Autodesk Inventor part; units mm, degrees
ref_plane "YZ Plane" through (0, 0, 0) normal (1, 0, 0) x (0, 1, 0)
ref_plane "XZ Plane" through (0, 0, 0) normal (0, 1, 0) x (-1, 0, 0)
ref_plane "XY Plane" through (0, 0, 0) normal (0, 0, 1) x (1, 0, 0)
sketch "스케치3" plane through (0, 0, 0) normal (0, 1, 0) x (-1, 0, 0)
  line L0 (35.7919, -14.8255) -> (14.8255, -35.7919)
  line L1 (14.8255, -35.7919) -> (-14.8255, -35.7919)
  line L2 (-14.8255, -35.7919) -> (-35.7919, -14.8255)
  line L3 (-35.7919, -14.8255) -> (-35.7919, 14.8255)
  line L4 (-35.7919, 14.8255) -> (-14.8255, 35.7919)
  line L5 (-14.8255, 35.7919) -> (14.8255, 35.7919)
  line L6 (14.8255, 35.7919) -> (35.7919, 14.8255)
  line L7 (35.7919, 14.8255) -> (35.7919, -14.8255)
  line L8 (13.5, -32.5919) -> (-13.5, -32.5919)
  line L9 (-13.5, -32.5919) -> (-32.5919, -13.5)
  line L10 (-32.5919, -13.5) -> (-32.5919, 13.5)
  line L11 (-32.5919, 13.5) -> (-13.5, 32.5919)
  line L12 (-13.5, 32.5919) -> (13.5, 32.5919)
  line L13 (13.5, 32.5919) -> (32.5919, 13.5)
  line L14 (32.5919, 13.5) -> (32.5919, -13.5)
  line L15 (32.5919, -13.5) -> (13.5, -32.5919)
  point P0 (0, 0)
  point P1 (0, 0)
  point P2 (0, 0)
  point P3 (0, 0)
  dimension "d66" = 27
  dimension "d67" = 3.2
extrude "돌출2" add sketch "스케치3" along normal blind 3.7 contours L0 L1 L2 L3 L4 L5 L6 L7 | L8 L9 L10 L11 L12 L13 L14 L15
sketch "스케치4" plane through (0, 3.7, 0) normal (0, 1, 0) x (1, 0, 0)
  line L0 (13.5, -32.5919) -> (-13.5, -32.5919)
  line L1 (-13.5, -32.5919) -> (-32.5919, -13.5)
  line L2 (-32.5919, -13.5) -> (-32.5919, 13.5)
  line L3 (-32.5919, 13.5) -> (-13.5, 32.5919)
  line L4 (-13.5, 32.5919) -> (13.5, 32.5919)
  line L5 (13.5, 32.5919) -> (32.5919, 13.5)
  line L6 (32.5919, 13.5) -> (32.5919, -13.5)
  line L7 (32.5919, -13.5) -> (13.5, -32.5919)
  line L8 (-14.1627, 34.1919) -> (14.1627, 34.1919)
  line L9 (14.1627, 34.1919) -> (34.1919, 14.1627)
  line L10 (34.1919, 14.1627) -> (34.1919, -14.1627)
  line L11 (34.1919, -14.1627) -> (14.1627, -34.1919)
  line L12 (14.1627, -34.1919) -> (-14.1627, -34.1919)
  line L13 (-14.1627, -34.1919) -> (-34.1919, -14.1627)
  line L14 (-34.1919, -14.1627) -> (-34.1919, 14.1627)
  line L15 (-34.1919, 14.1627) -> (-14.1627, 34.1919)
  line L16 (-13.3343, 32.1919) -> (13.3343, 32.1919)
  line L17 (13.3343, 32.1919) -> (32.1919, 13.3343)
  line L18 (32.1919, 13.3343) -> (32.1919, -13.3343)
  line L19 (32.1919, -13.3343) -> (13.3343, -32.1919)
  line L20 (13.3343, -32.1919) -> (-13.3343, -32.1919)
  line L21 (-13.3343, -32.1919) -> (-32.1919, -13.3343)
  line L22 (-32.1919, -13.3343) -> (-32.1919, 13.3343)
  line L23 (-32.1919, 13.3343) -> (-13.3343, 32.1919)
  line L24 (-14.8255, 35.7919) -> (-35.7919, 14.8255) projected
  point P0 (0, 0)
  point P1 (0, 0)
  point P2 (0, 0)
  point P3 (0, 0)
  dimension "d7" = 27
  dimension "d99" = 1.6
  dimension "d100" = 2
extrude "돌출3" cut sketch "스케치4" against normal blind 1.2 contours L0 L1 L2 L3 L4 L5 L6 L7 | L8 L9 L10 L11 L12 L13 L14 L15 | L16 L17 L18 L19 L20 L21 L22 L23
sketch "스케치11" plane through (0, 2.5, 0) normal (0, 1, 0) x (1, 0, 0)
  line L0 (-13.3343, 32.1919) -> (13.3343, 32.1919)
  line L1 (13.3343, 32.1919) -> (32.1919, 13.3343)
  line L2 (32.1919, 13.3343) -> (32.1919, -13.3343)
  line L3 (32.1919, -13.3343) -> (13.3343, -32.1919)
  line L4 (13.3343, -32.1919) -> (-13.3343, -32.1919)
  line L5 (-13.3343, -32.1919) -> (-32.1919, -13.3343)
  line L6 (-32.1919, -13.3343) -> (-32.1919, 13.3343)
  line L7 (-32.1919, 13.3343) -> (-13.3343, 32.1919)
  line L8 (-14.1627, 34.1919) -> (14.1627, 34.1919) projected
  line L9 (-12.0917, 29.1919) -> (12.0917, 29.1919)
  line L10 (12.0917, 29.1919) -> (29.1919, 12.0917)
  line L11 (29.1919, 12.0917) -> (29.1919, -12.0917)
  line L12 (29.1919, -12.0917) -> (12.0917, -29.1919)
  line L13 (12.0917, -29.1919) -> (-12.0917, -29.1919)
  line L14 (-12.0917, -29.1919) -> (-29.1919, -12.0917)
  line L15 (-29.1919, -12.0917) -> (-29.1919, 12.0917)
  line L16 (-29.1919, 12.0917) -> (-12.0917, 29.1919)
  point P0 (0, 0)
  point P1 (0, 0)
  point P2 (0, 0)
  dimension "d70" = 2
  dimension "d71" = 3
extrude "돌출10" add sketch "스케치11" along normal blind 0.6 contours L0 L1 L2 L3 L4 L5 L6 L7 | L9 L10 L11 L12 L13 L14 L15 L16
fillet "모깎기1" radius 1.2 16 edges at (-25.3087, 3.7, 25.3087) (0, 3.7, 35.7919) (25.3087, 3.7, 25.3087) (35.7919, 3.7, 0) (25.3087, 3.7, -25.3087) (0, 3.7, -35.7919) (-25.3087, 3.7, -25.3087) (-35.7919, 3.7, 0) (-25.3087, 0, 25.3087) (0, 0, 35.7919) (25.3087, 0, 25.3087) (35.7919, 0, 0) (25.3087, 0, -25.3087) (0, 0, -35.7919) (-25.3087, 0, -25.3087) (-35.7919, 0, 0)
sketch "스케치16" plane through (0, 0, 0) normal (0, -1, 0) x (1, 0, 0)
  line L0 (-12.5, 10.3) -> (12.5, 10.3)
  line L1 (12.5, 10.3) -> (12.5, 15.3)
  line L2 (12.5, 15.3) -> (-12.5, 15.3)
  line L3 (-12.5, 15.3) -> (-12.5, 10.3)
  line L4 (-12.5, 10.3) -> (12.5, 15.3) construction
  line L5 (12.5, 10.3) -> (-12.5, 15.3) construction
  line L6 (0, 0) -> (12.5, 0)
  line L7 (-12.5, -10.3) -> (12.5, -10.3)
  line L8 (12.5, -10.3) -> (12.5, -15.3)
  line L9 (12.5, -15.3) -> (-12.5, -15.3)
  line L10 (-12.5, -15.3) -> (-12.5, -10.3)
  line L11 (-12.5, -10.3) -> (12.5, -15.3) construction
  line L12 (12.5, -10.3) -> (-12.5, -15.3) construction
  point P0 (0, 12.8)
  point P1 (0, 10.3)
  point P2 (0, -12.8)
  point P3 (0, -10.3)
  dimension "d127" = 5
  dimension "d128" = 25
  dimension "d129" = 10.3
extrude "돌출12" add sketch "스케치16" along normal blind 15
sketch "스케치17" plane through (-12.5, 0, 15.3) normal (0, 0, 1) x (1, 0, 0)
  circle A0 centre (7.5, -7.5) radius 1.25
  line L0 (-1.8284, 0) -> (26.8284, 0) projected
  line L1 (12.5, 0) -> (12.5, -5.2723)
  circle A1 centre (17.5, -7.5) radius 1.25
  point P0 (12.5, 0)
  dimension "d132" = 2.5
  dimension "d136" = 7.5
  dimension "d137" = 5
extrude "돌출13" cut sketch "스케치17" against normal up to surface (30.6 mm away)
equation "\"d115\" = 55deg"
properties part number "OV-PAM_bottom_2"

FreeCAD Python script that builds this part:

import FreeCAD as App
import Part
import Sketcher


def edges_at(feature, points):
    """Names of the edges that pass closest to the given points."""
    edges = feature.Shape.Edges
    near = lambda p: min(range(len(edges)), key=lambda i: edges[i].distToShape(Part.Vertex(*p))[0])
    return sorted({f"Edge{near(p) + 1}" for p in points})


def add_polygon(sketch, points):
    """Adds a closed chain of lines whose ends are joined by coincident constraints."""
    first, n = sketch.GeometryCount, len(points)
    for a, b in zip(points, points[1:] + points[:1]):
        sketch.addGeometry(Part.LineSegment(App.Vector(*a, 0), App.Vector(*b, 0)), False)
    for i in range(n):
        sketch.addConstraint(Sketcher.Constraint("Coincident", first + i, 2, first + (i + 1) % n, 1))

doc = App.newDocument("Part")
params = doc.addObject("Spreadsheet::Sheet", "Params")
for row, (alias, value) in enumerate([
    ("pad1_length", "3.7 mm"),
    ("pocket1_length", "1.2 mm"),
    ("pad2_length", "0.6 mm"),
    ("fillet_radius", "1.2 mm"),
    ("sketch4_width", "25 mm"),
    ("sketch4_height", "5 mm"),
    ("pad3_length", "15 mm"),
    ("sketch5_diameter", "2.5 mm"),
    ("pocket2_length", "30.6 mm"),
], start=1):
    params.set(f"A{row}", alias)
    params.set(f"B{row}", "=" + value)
    params.setAlias(f"B{row}", alias)

body = doc.addObject("PartDesign::Body", "Body")

# Sketch on XZ plane
sketch1 = doc.addObject("Sketcher::SketchObject", "Sketch")
body.addObject(sketch1)
sketch1.AttachmentSupport = (doc.XZ_Plane, [""])
sketch1.MapMode = "FlatFace"
add_polygon(sketch1, [(-14.8255, -35.7919), (-35.7919, -14.8255), (-35.7919, 14.8255), (-14.8255, 35.7919), (14.8255, 35.7919), (35.7919, 14.8255), (35.7919, -14.8255), (14.8255, -35.7919)])  # lines 0-7
sketch1.addConstraint([
    Sketcher.Constraint("Vertical", 1),
    Sketcher.Constraint("Horizontal", 3),
    Sketcher.Constraint("Vertical", 5),
    Sketcher.Constraint("Horizontal", 7),
    Sketcher.Constraint("Symmetric", 0, 2, 4, 2, -1, 1),
    Sketcher.Constraint("Symmetric", 2, 2, 6, 2, -1, 1),
    Sketcher.Constraint("Perpendicular", 0, 2),
    Sketcher.Constraint("Perpendicular", 2, 4),
    Sketcher.Constraint("Perpendicular", 4, 6),
    Sketcher.Constraint("Horizontal", 1, 2, 4, 2),
    Sketcher.Constraint("Vertical", 3, 2, 6, 2),
    Sketcher.Constraint("Equal", 7, 1),
    Sketcher.Constraint("DistanceX", 3, 1, 3, 2, 29.651),
    Sketcher.Constraint("Distance", 0, 29.651),
])
pad1 = doc.addObject("PartDesign::Pad", "Pad")
body.addObject(pad1)
pad1.Profile = sketch1
pad1.setExpression("Length", "Params.pad1_length")
pad1.Reversed = True

# Sketch on XZ plane
sketch2 = doc.addObject("Sketcher::SketchObject", "Sketch001")
body.addObject(sketch2)
sketch2.AttachmentSupport = (doc.XZ_Plane, [""])
sketch2.MapMode = "FlatFace"
sketch2.AttachmentOffset = App.Placement(App.Vector(0, 0, -3.7), App.Rotation())
add_polygon(sketch2, [(14.1627, -34.1919), (-14.1627, -34.1919), (-34.1919, -14.1627), (-34.1919, 14.1627), (-14.1627, 34.1919), (14.1627, 34.1919), (34.1919, 14.1627), (34.1919, -14.1627)])  # lines 0-7
sketch2.addConstraint([
    Sketcher.Constraint("Horizontal", 0),
    Sketcher.Constraint("Vertical", 2),
    Sketcher.Constraint("Horizontal", 4),
    Sketcher.Constraint("Vertical", 6),
    Sketcher.Constraint("Symmetric", 0, 2, 4, 2, -1, 1),
    Sketcher.Constraint("Symmetric", 1, 2, 5, 2, -1, 1),
    Sketcher.Constraint("Perpendicular", 1, 3),
    Sketcher.Constraint("Perpendicular", 5, 7),
    Sketcher.Constraint("Horizontal", 2, 2, 5, 2),
    Sketcher.Constraint("Horizontal", 1, 2, 6, 2),
    Sketcher.Constraint("Vertical", 0, 2, 3, 2),
    Sketcher.Constraint("Equal", 4, 2),
    Sketcher.Constraint("DistanceX", 0, 2, 0, 1, 28.3254),
    Sketcher.Constraint("DistanceY", 0, 2, -1, 1, 34.192),
])
pocket1 = doc.addObject("PartDesign::Pocket", "Pocket")
body.addObject(pocket1)
pocket1.Profile = sketch2
pocket1.setExpression("Length", "Params.pocket1_length")
pocket1.Reversed = True

# Sketch on XZ plane
sketch3 = doc.addObject("Sketcher::SketchObject", "Sketch002")
body.addObject(sketch3)
sketch3.AttachmentSupport = (doc.XZ_Plane, [""])
sketch3.MapMode = "FlatFace"
sketch3.AttachmentOffset = App.Placement(App.Vector(0, 0, -2.5), App.Rotation())
add_polygon(sketch3, [(13.3343, -32.1919), (-13.3343, -32.1919), (-32.1919, -13.3343), (-32.1919, 13.3343), (-13.3343, 32.1919), (13.3343, 32.1919), (32.1919, 13.3343), (32.1919, -13.3343)])  # lines 0-7
sketch3.addConstraint([
    Sketcher.Constraint("Horizontal", 0),
    Sketcher.Constraint("Vertical", 2),
    Sketcher.Constraint("Horizontal", 4),
    Sketcher.Constraint("Vertical", 6),
    Sketcher.Constraint("Symmetric", 0, 2, 4, 2, -1, 1),
    Sketcher.Constraint("Symmetric", 1, 2, 5, 2, -1, 1),
    Sketcher.Constraint("Perpendicular", 1, 3),
    Sketcher.Constraint("Perpendicular", 5, 7),
    Sketcher.Constraint("Horizontal", 2, 2, 5, 2),
    Sketcher.Constraint("Horizontal", 1, 2, 6, 2),
    Sketcher.Constraint("Vertical", 0, 2, 3, 2),
    Sketcher.Constraint("Equal", 4, 2),
    Sketcher.Constraint("DistanceX", 0, 2, 0, 1, 26.6686),
    Sketcher.Constraint("DistanceY", 0, 2, -1, 1, 32.192),
])
pad2 = doc.addObject("PartDesign::Pad", "Pad001")
body.addObject(pad2)
pad2.Profile = sketch3
pad2.setExpression("Length", "Params.pad2_length")
pad2.Reversed = True
doc.recompute()

fillet = doc.addObject("PartDesign::Fillet", "Fillet")
body.addObject(fillet)
fillet.Base = (pad2, edges_at(pad2, [
    (-25.309, 3.7, 25.309),
    (0, 3.7, 35.792),
    (25.309, 3.7, 25.309),
    (35.792, 3.7, 0),
    (25.309, 3.7, -25.309),
    (0, 3.7, -35.792),
    (-25.309, 3.7, -25.309),
    (-35.792, 3.7, 0),
    (-25.309, 0, 25.309),
    (0, 0, 35.792),
    (25.309, 0, 25.309),
    (35.792, 0, 0),
    (25.309, 0, -25.309),
    (0, 0, -35.792),
    (-25.309, 0, -25.309),
    (-35.792, 0, 0),
]))
fillet.setExpression("Radius", "Params.fillet_radius")

# Sketch on XZ plane
sketch4 = doc.addObject("Sketcher::SketchObject", "Sketch003")
body.addObject(sketch4)
sketch4.AttachmentSupport = (doc.XZ_Plane, [""])
sketch4.MapMode = "FlatFace"
add_polygon(sketch4, [(-12.5, 15.3), (-12.5, 10.3), (12.5, 10.3), (12.5, 15.3)])  # lines 0-3
add_polygon(sketch4, [(12.5, -10.3), (-12.5, -10.3), (-12.5, -15.3), (12.5, -15.3)])  # lines 4-7
sketch4.addConstraint([
    Sketcher.Constraint("Vertical", 0),
    Sketcher.Constraint("Horizontal", 1),
    Sketcher.Constraint("Vertical", 2),
    Sketcher.Constraint("Horizontal", 3),
    Sketcher.Constraint("Horizontal", 4),
    Sketcher.Constraint("Vertical", 5),
    Sketcher.Constraint("Horizontal", 6),
    Sketcher.Constraint("Vertical", 7),
    Sketcher.Constraint("Symmetric", 1, 2, 4, 2, -1, 1),
    Sketcher.Constraint("Symmetric", 3, 2, 6, 2, -1, 1),
    Sketcher.Constraint("Vertical", 3, 2, 4, 2),
    Sketcher.Constraint("DistanceX", 1, 1, 1, 2, 25.0),
    Sketcher.Constraint("DistanceY", 0, 2, 0, 1, 5.0),
    Sketcher.Constraint("DistanceY", -1, 1, 0, 2, 10.3),
])
sketch4.setExpression("Constraints[19]", "Params.sketch4_width")
sketch4.setExpression("Constraints[20]", "Params.sketch4_height")
pad3 = doc.addObject("PartDesign::Pad", "Pad002")
body.addObject(pad3)
pad3.Profile = sketch4
pad3.setExpression("Length", "Params.pad3_length")

# Sketch on XY plane
sketch5 = doc.addObject("Sketcher::SketchObject", "Sketch004")
body.addObject(sketch5)
sketch5.AttachmentSupport = (doc.XY_Plane, [""])
sketch5.MapMode = "FlatFace"
sketch5.AttachmentOffset = App.Placement(App.Vector(0, 0, 15.3), App.Rotation())
sketch5.addGeometry([
    Part.Circle(App.Vector(-5, -7.5, 0), App.Vector(0, 0, 1), 1.25),
    Part.Circle(App.Vector(5, -7.5, 0), App.Vector(0, 0, 1), 1.25),
], False)
sketch5.addConstraint([
    Sketcher.Constraint("Equal", 0, 1),
    Sketcher.Constraint("Symmetric", 0, 3, 1, 3, -2),
    Sketcher.Constraint("Diameter", 0, 2.5),
    Sketcher.Constraint("DistanceX", 0, 3, -1, 1, 5.0),
    Sketcher.Constraint("DistanceY", 0, 3, -1, 1, 7.5),
])
sketch5.setExpression("Constraints[2]", "Params.sketch5_diameter")
pocket2 = doc.addObject("PartDesign::Pocket", "Pocket001")
body.addObject(pocket2)
pocket2.Profile = sketch5
pocket2.setExpression("Length", "Params.pocket2_length")

doc.recompute()
